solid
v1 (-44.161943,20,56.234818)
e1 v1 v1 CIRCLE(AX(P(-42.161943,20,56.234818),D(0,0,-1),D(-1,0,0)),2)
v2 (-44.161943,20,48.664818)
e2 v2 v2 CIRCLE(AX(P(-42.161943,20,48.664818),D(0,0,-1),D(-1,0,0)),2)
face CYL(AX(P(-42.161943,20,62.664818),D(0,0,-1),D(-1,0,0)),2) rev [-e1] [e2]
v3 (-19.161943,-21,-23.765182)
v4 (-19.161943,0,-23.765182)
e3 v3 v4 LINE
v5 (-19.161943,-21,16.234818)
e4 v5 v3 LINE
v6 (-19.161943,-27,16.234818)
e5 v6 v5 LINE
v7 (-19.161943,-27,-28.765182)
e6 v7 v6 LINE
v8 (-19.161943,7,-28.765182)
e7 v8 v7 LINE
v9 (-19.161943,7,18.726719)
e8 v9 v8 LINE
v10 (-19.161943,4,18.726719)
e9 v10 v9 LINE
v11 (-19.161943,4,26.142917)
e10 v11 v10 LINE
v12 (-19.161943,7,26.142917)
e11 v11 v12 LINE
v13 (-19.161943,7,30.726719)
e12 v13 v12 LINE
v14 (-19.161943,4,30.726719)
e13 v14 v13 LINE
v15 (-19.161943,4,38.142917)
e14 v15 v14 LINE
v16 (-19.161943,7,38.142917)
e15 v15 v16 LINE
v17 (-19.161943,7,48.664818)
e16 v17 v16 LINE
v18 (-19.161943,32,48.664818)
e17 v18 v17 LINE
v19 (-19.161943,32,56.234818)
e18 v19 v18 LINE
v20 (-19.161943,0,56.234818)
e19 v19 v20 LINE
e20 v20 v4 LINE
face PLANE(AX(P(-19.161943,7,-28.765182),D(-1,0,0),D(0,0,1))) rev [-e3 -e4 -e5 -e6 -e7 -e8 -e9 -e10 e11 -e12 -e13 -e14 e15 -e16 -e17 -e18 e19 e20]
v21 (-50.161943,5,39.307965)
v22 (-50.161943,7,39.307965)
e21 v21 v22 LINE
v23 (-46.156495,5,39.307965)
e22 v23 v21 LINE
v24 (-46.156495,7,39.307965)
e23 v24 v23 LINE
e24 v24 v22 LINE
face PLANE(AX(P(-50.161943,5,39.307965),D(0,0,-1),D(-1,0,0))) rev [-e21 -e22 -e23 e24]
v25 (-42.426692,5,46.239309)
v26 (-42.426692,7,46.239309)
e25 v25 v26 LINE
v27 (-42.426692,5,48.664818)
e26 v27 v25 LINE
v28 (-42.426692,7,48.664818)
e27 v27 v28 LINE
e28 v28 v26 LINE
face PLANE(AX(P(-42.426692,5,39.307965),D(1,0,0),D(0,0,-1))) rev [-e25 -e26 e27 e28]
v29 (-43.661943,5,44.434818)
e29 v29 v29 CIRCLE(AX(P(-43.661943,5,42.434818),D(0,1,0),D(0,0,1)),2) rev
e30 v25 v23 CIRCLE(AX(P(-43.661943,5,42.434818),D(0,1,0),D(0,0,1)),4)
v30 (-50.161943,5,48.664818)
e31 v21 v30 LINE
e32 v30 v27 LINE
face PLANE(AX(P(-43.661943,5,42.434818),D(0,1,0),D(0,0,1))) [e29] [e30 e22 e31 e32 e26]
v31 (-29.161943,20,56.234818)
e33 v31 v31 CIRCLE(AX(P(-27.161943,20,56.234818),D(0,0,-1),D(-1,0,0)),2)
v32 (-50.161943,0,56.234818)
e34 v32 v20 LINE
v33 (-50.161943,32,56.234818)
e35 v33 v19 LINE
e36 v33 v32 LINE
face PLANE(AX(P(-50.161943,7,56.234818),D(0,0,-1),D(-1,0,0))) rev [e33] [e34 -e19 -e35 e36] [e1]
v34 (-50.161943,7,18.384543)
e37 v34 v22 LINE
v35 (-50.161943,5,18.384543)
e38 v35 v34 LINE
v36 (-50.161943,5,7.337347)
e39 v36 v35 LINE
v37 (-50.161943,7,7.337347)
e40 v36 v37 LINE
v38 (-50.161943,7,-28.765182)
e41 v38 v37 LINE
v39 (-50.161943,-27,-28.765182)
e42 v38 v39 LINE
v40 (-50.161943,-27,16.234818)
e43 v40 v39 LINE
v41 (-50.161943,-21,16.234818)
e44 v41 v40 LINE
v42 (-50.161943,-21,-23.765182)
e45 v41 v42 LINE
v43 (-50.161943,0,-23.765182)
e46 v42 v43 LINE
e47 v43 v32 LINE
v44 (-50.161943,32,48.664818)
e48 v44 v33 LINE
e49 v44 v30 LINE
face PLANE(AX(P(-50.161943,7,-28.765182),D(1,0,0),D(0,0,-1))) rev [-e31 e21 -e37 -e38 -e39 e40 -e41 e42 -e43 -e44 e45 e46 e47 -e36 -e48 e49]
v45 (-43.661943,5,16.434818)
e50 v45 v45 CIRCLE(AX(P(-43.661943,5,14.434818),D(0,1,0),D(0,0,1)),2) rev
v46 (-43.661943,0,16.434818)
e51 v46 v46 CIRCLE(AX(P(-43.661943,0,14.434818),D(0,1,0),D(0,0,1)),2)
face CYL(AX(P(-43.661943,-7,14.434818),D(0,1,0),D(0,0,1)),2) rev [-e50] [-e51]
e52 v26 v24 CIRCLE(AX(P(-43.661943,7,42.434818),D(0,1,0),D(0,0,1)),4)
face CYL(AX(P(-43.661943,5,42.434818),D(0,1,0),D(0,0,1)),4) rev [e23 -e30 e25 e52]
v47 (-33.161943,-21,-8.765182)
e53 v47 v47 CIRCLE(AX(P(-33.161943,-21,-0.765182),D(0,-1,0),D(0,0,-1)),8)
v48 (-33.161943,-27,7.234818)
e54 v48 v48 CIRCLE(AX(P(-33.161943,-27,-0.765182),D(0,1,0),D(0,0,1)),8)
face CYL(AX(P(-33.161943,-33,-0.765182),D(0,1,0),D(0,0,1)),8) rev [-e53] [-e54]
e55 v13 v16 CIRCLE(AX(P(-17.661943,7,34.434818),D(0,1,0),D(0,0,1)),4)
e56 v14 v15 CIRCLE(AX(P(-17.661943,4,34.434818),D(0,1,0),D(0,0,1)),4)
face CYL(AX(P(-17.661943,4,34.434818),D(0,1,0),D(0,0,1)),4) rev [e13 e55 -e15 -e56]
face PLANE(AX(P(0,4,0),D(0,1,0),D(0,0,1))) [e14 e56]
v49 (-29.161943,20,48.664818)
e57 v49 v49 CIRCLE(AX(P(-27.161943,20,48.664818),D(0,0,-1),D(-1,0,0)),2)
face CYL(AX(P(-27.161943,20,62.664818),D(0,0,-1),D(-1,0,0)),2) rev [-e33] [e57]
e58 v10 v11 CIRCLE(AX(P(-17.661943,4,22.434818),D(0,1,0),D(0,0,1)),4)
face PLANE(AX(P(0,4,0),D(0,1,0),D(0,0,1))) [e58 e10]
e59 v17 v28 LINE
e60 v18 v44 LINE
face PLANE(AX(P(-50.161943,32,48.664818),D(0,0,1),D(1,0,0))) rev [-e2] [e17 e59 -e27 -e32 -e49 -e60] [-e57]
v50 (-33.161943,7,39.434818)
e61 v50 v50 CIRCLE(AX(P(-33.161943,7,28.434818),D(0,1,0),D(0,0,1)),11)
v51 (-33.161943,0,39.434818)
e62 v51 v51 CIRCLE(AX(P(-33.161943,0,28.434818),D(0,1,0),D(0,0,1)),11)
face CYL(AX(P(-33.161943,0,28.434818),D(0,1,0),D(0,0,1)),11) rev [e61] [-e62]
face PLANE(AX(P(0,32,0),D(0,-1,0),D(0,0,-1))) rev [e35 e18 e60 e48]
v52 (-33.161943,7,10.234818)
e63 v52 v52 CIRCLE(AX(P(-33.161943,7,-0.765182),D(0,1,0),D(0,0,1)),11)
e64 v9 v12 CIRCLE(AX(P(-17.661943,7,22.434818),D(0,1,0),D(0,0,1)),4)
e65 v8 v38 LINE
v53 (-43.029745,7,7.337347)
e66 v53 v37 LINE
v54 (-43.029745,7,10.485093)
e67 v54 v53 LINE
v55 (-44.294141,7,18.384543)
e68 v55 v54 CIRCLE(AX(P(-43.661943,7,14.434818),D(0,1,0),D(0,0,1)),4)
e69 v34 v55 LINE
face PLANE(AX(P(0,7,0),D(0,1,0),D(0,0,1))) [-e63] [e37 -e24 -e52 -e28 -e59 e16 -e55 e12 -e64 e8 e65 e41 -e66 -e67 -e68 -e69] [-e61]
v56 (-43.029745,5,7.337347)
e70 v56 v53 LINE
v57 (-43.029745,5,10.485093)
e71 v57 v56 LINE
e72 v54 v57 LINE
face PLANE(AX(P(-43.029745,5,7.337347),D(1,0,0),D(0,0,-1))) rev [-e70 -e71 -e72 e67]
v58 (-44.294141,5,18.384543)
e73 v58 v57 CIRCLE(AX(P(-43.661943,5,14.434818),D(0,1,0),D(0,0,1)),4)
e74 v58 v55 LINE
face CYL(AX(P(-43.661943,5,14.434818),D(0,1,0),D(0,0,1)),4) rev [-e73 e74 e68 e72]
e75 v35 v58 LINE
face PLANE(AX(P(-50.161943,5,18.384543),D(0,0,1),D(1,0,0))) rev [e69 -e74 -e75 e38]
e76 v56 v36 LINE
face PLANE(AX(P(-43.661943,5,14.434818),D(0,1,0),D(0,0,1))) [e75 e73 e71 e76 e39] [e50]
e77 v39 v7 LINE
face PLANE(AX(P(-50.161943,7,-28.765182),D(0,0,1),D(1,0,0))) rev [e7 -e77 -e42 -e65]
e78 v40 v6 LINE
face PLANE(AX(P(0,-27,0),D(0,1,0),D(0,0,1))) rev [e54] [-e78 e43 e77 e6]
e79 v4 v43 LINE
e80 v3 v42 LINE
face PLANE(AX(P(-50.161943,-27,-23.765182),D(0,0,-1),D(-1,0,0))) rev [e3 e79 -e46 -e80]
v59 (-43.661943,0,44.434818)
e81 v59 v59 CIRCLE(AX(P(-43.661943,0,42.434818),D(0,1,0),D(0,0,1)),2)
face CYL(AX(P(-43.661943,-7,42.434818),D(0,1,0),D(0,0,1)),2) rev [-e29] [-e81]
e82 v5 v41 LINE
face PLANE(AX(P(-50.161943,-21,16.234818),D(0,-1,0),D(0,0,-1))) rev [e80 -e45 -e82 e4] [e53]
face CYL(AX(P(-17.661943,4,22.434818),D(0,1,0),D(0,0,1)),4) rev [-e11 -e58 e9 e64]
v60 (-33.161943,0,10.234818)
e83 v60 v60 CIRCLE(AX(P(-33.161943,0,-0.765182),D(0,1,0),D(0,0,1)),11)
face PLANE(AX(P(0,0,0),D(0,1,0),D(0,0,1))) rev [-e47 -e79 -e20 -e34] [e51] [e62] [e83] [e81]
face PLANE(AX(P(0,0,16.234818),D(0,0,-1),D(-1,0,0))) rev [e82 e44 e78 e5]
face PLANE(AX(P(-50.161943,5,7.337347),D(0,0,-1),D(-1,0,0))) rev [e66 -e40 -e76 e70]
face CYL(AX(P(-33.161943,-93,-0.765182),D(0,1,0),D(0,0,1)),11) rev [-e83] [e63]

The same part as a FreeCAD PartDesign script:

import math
import FreeCAD as App
import Part
import Sketcher
from FreeCAD import Vector

doc = App.newDocument("Part")
body = doc.addObject("PartDesign::Body", "Body")

# Sketch on XZ plane
sketch1 = body.newObject("Sketcher::SketchObject", "Sketch")
sketch1.AttachmentSupport = (doc.getObject("XZ_Plane"), [""])
sketch1.MapMode = "FlatFace"
sketch1.addGeometry(Part.LineSegment(Vector(-50, -29, 0), Vector(-50, 56, 0)), False)
sketch1.addGeometry(Part.LineSegment(Vector(-50, 56, 0), Vector(-19, 56, 0)), False)
sketch1.addGeometry(Part.LineSegment(Vector(-19, 56, 0), Vector(-19, -29, 0)), False)
sketch1.addGeometry(Part.LineSegment(Vector(-19, -29, 0), Vector(-50, -29, 0)), False)
sketch1.addConstraint(Sketcher.Constraint("Coincident", 0, 2, 1, 1))
sketch1.addConstraint(Sketcher.Constraint("Coincident", 1, 2, 2, 1))
sketch1.addConstraint(Sketcher.Constraint("Coincident", 2, 2, 3, 1))
sketch1.addConstraint(Sketcher.Constraint("Coincident", 3, 2, 0, 1))
sketch1.addConstraint(Sketcher.Constraint("Vertical", 0))
sketch1.addConstraint(Sketcher.Constraint("Horizontal", 1))
sketch1.addConstraint(Sketcher.Constraint("Vertical", 2))
sketch1.addConstraint(Sketcher.Constraint("Horizontal", 3))
sketch1.addConstraint(Sketcher.Constraint("DistanceX", 1, 1, 1, 2, 31.0))
sketch1.addConstraint(Sketcher.Constraint("DistanceY", 0, 1, 0, 2, 85.0))
sketch1.addConstraint(Sketcher.Constraint("DistanceX", 0, 2, -1, 1, 50.161943))
sketch1.addConstraint(Sketcher.Constraint("DistanceY", -1, 1, 0, 2, 56.234818))
pad1 = body.newObject("PartDesign::Pad", "Pad")
pad1.Profile = sketch1
pad1.Length = 7
pad1.Reversed = True

# Sketch on XZ plane
sketch2 = body.newObject("Sketcher::SketchObject", "Sketch001")
sketch2.AttachmentSupport = (doc.getObject("XZ_Plane"), [""])
sketch2.MapMode = "FlatFace"
sketch2.AttachmentOffset = App.Placement(Vector(0, 0, -7), App.Rotation())
sketch2.addGeometry(Part.Circle(Vector(-33, -1, 0), Vector(0, 0, 1), 11), False)
sketch2.addConstraint(Sketcher.Constraint("Diameter", 0, 22.0))
sketch2.addConstraint(Sketcher.Constraint("DistanceX", 0, 3, -1, 1, 33.161943))
sketch2.addConstraint(Sketcher.Constraint("DistanceY", 0, 3, -1, 1, 0.765182))
pocket1 = body.newObject("PartDesign::Pocket", "Pocket")
pocket1.Profile = sketch2
pocket1.Length = 100
pocket1.Reversed = True

# Sketch on XZ plane
sketch3 = body.newObject("Sketcher::SketchObject", "Sketch002")
sketch3.AttachmentSupport = (doc.getObject("XZ_Plane"), [""])
sketch3.MapMode = "FlatFace"
sketch3.AttachmentOffset = App.Placement(Vector(0, 0, -7), App.Rotation())
sketch3.addGeometry(Part.Circle(Vector(-33, 28, 0), Vector(0, 0, 1), 11), False)
sketch3.addConstraint(Sketcher.Constraint("Diameter", 0, 22.0))
sketch3.addConstraint(Sketcher.Constraint("DistanceX", 0, 3, -1, 1, 33.161943))
sketch3.addConstraint(Sketcher.Constraint("DistanceY", -1, 1, 0, 3, 28.434818))
pocket2 = body.newObject("PartDesign::Pocket", "Pocket001")
pocket2.Profile = sketch3
pocket2.Length = 7
pocket2.Reversed = True

# Sketch on XZ plane
sketch4 = body.newObject("Sketcher::SketchObject", "Sketch003")
sketch4.AttachmentSupport = (doc.getObject("XZ_Plane"), [""])
sketch4.MapMode = "FlatFace"
sketch4.AttachmentOffset = App.Placement(Vector(0, 0, -7), App.Rotation())
sketch4.addGeometry(Part.LineSegment(Vector(-50, 49, 0), Vector(-50, 56, 0)), False)
sketch4.addGeometry(Part.LineSegment(Vector(-50, 56, 0), Vector(-19, 56, 0)), False)
sketch4.addGeometry(Part.LineSegment(Vector(-19, 56, 0), Vector(-19, 49, 0)), False)
sketch4.addGeometry(Part.LineSegment(Vector(-19, 49, 0), Vector(-50, 49, 0)), False)
sketch4.addConstraint(Sketcher.Constraint("Coincident", 0, 2, 1, 1))
sketch4.addConstraint(Sketcher.Constraint("Coincident", 1, 2, 2, 1))
sketch4.addConstraint(Sketcher.Constraint("Coincident", 2, 2, 3, 1))
sketch4.addConstraint(Sketcher.Constraint("Coincident", 3, 2, 0, 1))
sketch4.addConstraint(Sketcher.Constraint("Vertical", 0))
sketch4.addConstraint(Sketcher.Constraint("Horizontal", 1))
sketch4.addConstraint(Sketcher.Constraint("Vertical", 2))
sketch4.addConstraint(Sketcher.Constraint("Horizontal", 3))
sketch4.addConstraint(Sketcher.Constraint("DistanceX", 1, 1, 1, 2, 31.0))
sketch4.addConstraint(Sketcher.Constraint("DistanceY", 0, 1, 0, 2, 7.57))
sketch4.addConstraint(Sketcher.Constraint("DistanceX", 0, 2, -1, 1, 50.161943))
sketch4.addConstraint(Sketcher.Constraint("DistanceY", -1, 1, 0, 2, 56.234818))
pad2 = body.newObject("PartDesign::Pad", "Pad001")
pad2.Profile = sketch4
pad2.Length = 25
pad2.Reversed = True

# Sketch on XY plane
sketch5 = body.newObject("Sketcher::SketchObject", "Sketch004")
sketch5.AttachmentSupport = (doc.getObject("XY_Plane"), [""])
sketch5.MapMode = "FlatFace"
sketch5.AttachmentOffset = App.Placement(Vector(0, 0, 48.664818), App.Rotation())
sketch5.addGeometry(Part.Circle(Vector(-42.2, 20, 0), Vector(0, 0, 1), 2), False)
sketch5.addGeometry(Part.Circle(Vector(-27.2, 20, 0), Vector(0, 0, 1), 2), False)
sketch5.addConstraint(Sketcher.Constraint("Equal", 0, 1))
sketch5.addConstraint(Sketcher.Constraint("Horizontal", 0, 3, 1, 3))
sketch5.addConstraint(Sketcher.Constraint("Diameter", 0, 4.0))
sketch5.addConstraint(Sketcher.Constraint("DistanceY", -1, 1, 0, 3, 20.0))
sketch5.addConstraint(Sketcher.Constraint("DistanceX", 0, 3, 1, 3, 15.0))
sketch5.addConstraint(Sketcher.Constraint("DistanceX", 0, 3, -1, 1, 42.161943))
pocket3 = body.newObject("PartDesign::Pocket", "Pocket002")
pocket3.Profile = sketch5
pocket3.Length = 14
pocket3.Reversed = True

# Sketch on XZ plane
sketch6 = body.newObject("Sketcher::SketchObject", "Sketch005")
sketch6.AttachmentSupport = (doc.getObject("XZ_Plane"), [""])
sketch6.MapMode = "FlatFace"
sketch6.AttachmentOffset = App.Placement(Vector(0, 0, -7), App.Rotation())
sketch6.addGeometry(Part.Circle(Vector(-43.7, 14.4, 0), Vector(0, 0, 1), 2), False)
sketch6.addGeometry(Part.Circle(Vector(-43.7, 42.4, 0), Vector(0, 0, 1), 2), False)
sketch6.addConstraint(Sketcher.Constraint("Equal", 0, 1))
sketch6.addConstraint(Sketcher.Constraint("Vertical", 0, 3, 1, 3))
sketch6.addConstraint(Sketcher.Constraint("Diameter", 0, 4.0))
sketch6.addConstraint(Sketcher.Constraint("DistanceY", 0, 3, 1, 3, 28.0))
sketch6.addConstraint(Sketcher.Constraint("DistanceX", 0, 3, -1, 1, 43.661943))
sketch6.addConstraint(Sketcher.Constraint("DistanceY", -1, 1, 0, 3, 14.434818))
pocket4 = body.newObject("PartDesign::Pocket", "Pocket003")
pocket4.Profile = sketch6
pocket4.Length = 14
pocket4.Reversed = True

# Sketch on XZ plane
sketch7 = body.newObject("Sketcher::SketchObject", "Sketch006")
sketch7.AttachmentSupport = (doc.getObject("XZ_Plane"), [""])
sketch7.MapMode = "FlatFace"
sketch7.addGeometry(Part.LineSegment(Vector(-50, -24, 0), Vector(-50, -29, 0)), False)
sketch7.addGeometry(Part.LineSegment(Vector(-50, -29, 0), Vector(-19, -29, 0)), False)
sketch7.addGeometry(Part.LineSegment(Vector(-19, -29, 0), Vector(-19, -24, 0)), False)
sketch7.addGeometry(Part.LineSegment(Vector(-19, -24, 0), Vector(-50, -24, 0)), False)
sketch7.addConstraint(Sketcher.Constraint("Coincident", 0, 2, 1, 1))
sketch7.addConstraint(Sketcher.Constraint("Coincident", 1, 2, 2, 1))
sketch7.addConstraint(Sketcher.Constraint("Coincident", 2, 2, 3, 1))
sketch7.addConstraint(Sketcher.Constraint("Coincident", 3, 2, 0, 1))
sketch7.addConstraint(Sketcher.Constraint("Vertical", 0))
sketch7.addConstraint(Sketcher.Constraint("Horizontal", 1))
sketch7.addConstraint(Sketcher.Constraint("Vertical", 2))
sketch7.addConstraint(Sketcher.Constraint("Horizontal", 3))
sketch7.addConstraint(Sketcher.Constraint("DistanceX", 1, 1, 1, 2, 31.0))
sketch7.addConstraint(Sketcher.Constraint("DistanceY", 0, 2, 0, 1, 5.0))
sketch7.addConstraint(Sketcher.Constraint("DistanceX", 0, 2, -1, 1, 50.161943))
sketch7.addConstraint(Sketcher.Constraint("DistanceY", 0, 2, -1, 1, 28.765182))
pad3 = body.newObject("PartDesign::Pad", "Pad002")
pad3.Profile = sketch7
pad3.Length = 27

# Sketch on XY plane
sketch8 = body.newObject("Sketcher::SketchObject", "Sketch007")
sketch8.AttachmentSupport = (doc.getObject("XY_Plane"), [""])
sketch8.MapMode = "FlatFace"
sketch8.AttachmentOffset = App.Placement(Vector(0, 0, -23.765182), App.Rotation())
sketch8.addGeometry(Part.LineSegment(Vector(-50, -21, 0), Vector(-50, -27, 0)), False)
sketch8.addGeometry(Part.LineSegment(Vector(-50, -27, 0), Vector(-19, -27, 0)), False)
sketch8.addGeometry(Part.LineSegment(Vector(-19, -27, 0), Vector(-19, -21, 0)), False)
sketch8.addGeometry(Part.LineSegment(Vector(-19, -21, 0), Vector(-50, -21, 0)), False)
sketch8.addConstraint(Sketcher.Constraint("Coincident", 0, 2, 1, 1))
sketch8.addConstraint(Sketcher.Constraint("Coincident", 1, 2, 2, 1))
sketch8.addConstraint(Sketcher.Constraint("Coincident", 2, 2, 3, 1))
sketch8.addConstraint(Sketcher.Constraint("Coincident", 3, 2, 0, 1))
sketch8.addConstraint(Sketcher.Constraint("Vertical", 0))
sketch8.addConstraint(Sketcher.Constraint("Horizontal", 1))
sketch8.addConstraint(Sketcher.Constraint("Vertical", 2))
sketch8.addConstraint(Sketcher.Constraint("Horizontal", 3))
sketch8.addConstraint(Sketcher.Constraint("DistanceX", 1, 1, 1, 2, 31.0))
sketch8.addConstraint(Sketcher.Constraint("DistanceY", 0, 2, 0, 1, 6.0))
sketch8.addConstraint(Sketcher.Constraint("DistanceY", 0, 2, -1, 1, 27.0))
sketch8.addConstraint(Sketcher.Constraint("DistanceX", 0, 2, -1, 1, 50.161943))
pad4 = body.newObject("PartDesign::Pad", "Pad003")
pad4.Profile = sketch8
pad4.Length = 40

# Sketch on XZ plane
sketch9 = body.newObject("Sketcher::SketchObject", "Sketch008")
sketch9.AttachmentSupport = (doc.getObject("XZ_Plane"), [""])
sketch9.MapMode = "FlatFace"
sketch9.AttachmentOffset = App.Placement(Vector(0, 0, -7), App.Rotation())
sketch9.addGeometry(Part.Circle(Vector(-33, -1, 0), Vector(0, 0, 1), 8), False)
sketch9.addConstraint(Sketcher.Constraint("Diameter", 0, 16.0))
sketch9.addConstraint(Sketcher.Constraint("DistanceX", 0, 3, -1, 1, 33.161943))
sketch9.addConstraint(Sketcher.Constraint("DistanceY", 0, 3, -1, 1, 0.765182))
pocket5 = body.newObject("PartDesign::Pocket", "Pocket004")
pocket5.Profile = sketch9
pocket5.Length = 40
pocket5.Reversed = True

# Sketch on XZ plane
sketch10 = body.newObject("Sketcher::SketchObject", "Sketch009")
sketch10.AttachmentSupport = (doc.getObject("XZ_Plane"), [""])
sketch10.MapMode = "FlatFace"
sketch10.AttachmentOffset = App.Placement(Vector(0, 0, -7), App.Rotation())
sketch10.addGeometry(Part.Circle(Vector(-43.7, 14.4, 0), Vector(0, 0, 1), 4), False)
sketch10.addGeometry(Part.Circle(Vector(-43.7, 42.4, 0), Vector(0, 0, 1), 4), False)
sketch10.addConstraint(Sketcher.Constraint("Equal", 0, 1))
sketch10.addConstraint(Sketcher.Constraint("Vertical", 0, 3, 1, 3))
sketch10.addConstraint(Sketcher.Constraint("Diameter", 0, 8.0))
sketch10.addConstraint(Sketcher.Constraint("DistanceY", 0, 3, 1, 3, 28.0))
sketch10.addConstraint(Sketcher.Constraint("DistanceX", 0, 3, -1, 1, 43.661943))
sketch10.addConstraint(Sketcher.Constraint("DistanceY", -1, 1, 0, 3, 14.434818))
pocket6 = body.newObject("PartDesign::Pocket", "Pocket005")
pocket6.Profile = sketch10
pocket6.Length = 2
pocket6.Reversed = True

# Sketch on XZ plane
sketch11 = body.newObject("Sketcher::SketchObject", "Sketch010")
sketch11.AttachmentSupport = (doc.getObject("XZ_Plane"), [""])
sketch11.MapMode = "FlatFace"
sketch11.AttachmentOffset = App.Placement(Vector(0, 0, -7), App.Rotation())
sketch11.addGeometry(Part.LineSegment(Vector(-50, 7, 0), Vector(-50, 18, 0)), False)
sketch11.addGeometry(Part.LineSegment(Vector(-50, 18, 0), Vector(-43, 18, 0)), False)
sketch11.addGeometry(Part.LineSegment(Vector(-43, 18, 0), Vector(-43, 7, 0)), False)
sketch11.addGeometry(Part.LineSegment(Vector(-43, 7, 0), Vector(-50, 7, 0)), False)
sketch11.addGeometry(Part.LineSegment(Vector(-50, 39, 0), Vector(-50, 49, 0)), False)
sketch11.addGeometry(Part.LineSegment(Vector(-50, 49, 0), Vector(-42, 49, 0)), False)
sketch11.addGeometry(Part.LineSegment(Vector(-42, 49, 0), Vector(-42, 39, 0)), False)
sketch11.addGeometry(Part.LineSegment(Vector(-42, 39, 0), Vector(-50, 39, 0)), False)
sketch11.addConstraint(Sketcher.Constraint("Coincident", 0, 2, 1, 1))
sketch11.addConstraint(Sketcher.Constraint("Coincident", 1, 2, 2, 1))
sketch11.addConstraint(Sketcher.Constraint("Coincident", 2, 2, 3, 1))
sketch11.addConstraint(Sketcher.Constraint("Coincident", 3, 2, 0, 1))
sketch11.addConstraint(Sketcher.Constraint("Coincident", 4, 2, 5, 1))
sketch11.addConstraint(Sketcher.Constraint("Coincident", 5, 2, 6, 1))
sketch11.addConstraint(Sketcher.Constraint("Coincident", 6, 2, 7, 1))
sketch11.addConstraint(Sketcher.Constraint("Coincident", 7, 2, 4, 1))
sketch11.addConstraint(Sketcher.Constraint("Vertical", 0))
sketch11.addConstraint(Sketcher.Constraint("Horizontal", 1))
sketch11.addConstraint(Sketcher.Constraint("Vertical", 2))
sketch11.addConstraint(Sketcher.Constraint("Horizontal", 3))
sketch11.addConstraint(Sketcher.Constraint("Vertical", 4))
sketch11.addConstraint(Sketcher.Constraint("Horizontal", 5))
sketch11.addConstraint(Sketcher.Constraint("Vertical", 6))
sketch11.addConstraint(Sketcher.Constraint("Horizontal", 7))
sketch11.addConstraint(Sketcher.Constraint("Vertical", 3, 2, 4, 2))
sketch11.addConstraint(Sketcher.Constraint("DistanceX", 1, 1, 1, 2, 7.132198))
sketch11.addConstraint(Sketcher.Constraint("DistanceX", 5, 1, 5, 2, 7.735251))
sketch11.addConstraint(Sketcher.Constraint("DistanceY", 0, 1, 0, 2, 11.047195))
sketch11.addConstraint(Sketcher.Constraint("DistanceY", 4, 1, 4, 2, 9.356853))
sketch11.addConstraint(Sketcher.Constraint("DistanceX", 5, 2, -1, 1, 42.426692))
sketch11.addConstraint(Sketcher.Constraint("DistanceY", 3, 2, 4, 2, 41.327471))
sketch11.addConstraint(Sketcher.Constraint("DistanceY", -1, 1, 0, 2, 18.384543))
pocket7 = body.newObject("PartDesign::Pocket", "Pocket006")
pocket7.Profile = sketch11
pocket7.Length = 2
pocket7.Reversed = True

# Sketch on XZ plane
sketch12 = body.newObject("Sketcher::SketchObject", "Sketch011")
sketch12.AttachmentSupport = (doc.getObject("XZ_Plane"), [""])
sketch12.MapMode = "FlatFace"
sketch12.AttachmentOffset = App.Placement(Vector(0, 0, -7), App.Rotation())
sketch12.addGeometry(Part.ArcOfCircle(Part.Circle(Vector(-17.7, 22.4, 0), Vector(0, 0, 1), 4), math.radians(112), math.radians(248)), False)
sketch12.addGeometry(Part.LineSegment(Vector(-19.2, 26.1, 0), Vector(-19.2, 18.7, 0)), False)
sketch12.addGeometry(Part.LineSegment(Vector(-19.2, 38.1, 0), Vector(-19.2, 30.7, 0)), False)
sketch12.addGeometry(Part.ArcOfCircle(Part.Circle(Vector(-17.7, 34.4, 0), Vector(0, 0, 1), 4), math.radians(112), math.radians(248)), False)
sketch12.addConstraint(Sketcher.Constraint("Coincident", 0, 1, 1, 1))
sketch12.addConstraint(Sketcher.Constraint("Coincident", 1, 2, 0, 2))
sketch12.addConstraint(Sketcher.Constraint("Coincident", 2, 1, 3, 1))
sketch12.addConstraint(Sketcher.Constraint("Coincident", 3, 2, 2, 2))
sketch12.addConstraint(Sketcher.Constraint("Vertical", 1))
sketch12.addConstraint(Sketcher.Constraint("Vertical", 2))
sketch12.addConstraint(Sketcher.Constraint("Equal", 0, 3))
sketch12.addConstraint(Sketcher.Constraint("Vertical", 0, 3, 3, 3))
sketch12.addConstraint(Sketcher.Constraint("Vertical", 1, 2, 2, 1))
sketch12.addConstraint(Sketcher.Constraint("Radius", 0, 4.0))
sketch12.addConstraint(Sketcher.Constraint("DistanceY", 0, 3, 3, 3, 12.0))
sketch12.addConstraint(Sketcher.Constraint("DistanceX", 0, 1, 0, 3, 1.5))
sketch12.addConstraint(Sketcher.Constraint("DistanceY", -1, 1, 1, 2, 18.726719))
sketch12.addConstraint(Sketcher.Constraint("DistanceX", 0, 3, -1, 1, 17.661943))
pocket8 = body.newObject("PartDesign::Pocket", "Pocket007")
pocket8.Profile = sketch12
pocket8.Length = 3
pocket8.Reversed = True

doc.recompute()
